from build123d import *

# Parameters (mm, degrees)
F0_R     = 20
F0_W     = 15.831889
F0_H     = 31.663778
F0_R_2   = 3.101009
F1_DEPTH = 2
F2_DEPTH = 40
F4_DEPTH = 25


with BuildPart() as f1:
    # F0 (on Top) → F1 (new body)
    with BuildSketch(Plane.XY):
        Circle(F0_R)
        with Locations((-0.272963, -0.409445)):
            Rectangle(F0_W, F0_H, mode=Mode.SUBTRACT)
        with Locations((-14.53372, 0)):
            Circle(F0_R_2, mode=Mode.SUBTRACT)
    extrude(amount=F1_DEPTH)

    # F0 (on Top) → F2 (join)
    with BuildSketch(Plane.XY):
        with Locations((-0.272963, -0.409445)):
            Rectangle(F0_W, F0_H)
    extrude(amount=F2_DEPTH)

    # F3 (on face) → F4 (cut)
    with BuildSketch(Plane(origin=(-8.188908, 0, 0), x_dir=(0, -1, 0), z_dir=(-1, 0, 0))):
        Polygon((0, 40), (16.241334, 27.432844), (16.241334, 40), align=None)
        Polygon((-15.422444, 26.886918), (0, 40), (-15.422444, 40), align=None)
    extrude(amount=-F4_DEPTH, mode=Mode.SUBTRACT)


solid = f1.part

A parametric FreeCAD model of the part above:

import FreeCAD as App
import Part
import Sketcher
from FreeCAD import Vector
Q = App.Units.Quantity


def add_polygon(sketch, points):
    """Adds a closed chain of lines whose ends are joined by coincident constraints."""
    first, n = sketch.GeometryCount, len(points)
    for a, b in zip(points, points[1:] + points[:1]):
        sketch.addGeometry(Part.LineSegment(App.Vector(*a, 0), App.Vector(*b, 0)), False)
    for i in range(n):
        sketch.addConstraint(Sketcher.Constraint("Coincident", first + i, 2, first + (i + 1) % n, 1))

doc = App.newDocument("Part")
body = doc.addObject("PartDesign::Body", "Body")

# Sketch on XY plane
sketch1 = body.newObject("Sketcher::SketchObject", "Sketch")
sketch1.AttachmentSupport = (doc.getObject("XY_Plane"), [""])
sketch1.MapMode = "FlatFace"
sketch1.addGeometry(Part.Circle(Vector(0, 0, 0), Vector(0, 0, 1), 20), False)  # 0
sketch1.addGeometry(Part.Circle(Vector(-14.53372, 0, 0), Vector(0, 0, 1), 3.101009), False)  # 1
add_polygon(sketch1, [(7.642982, -16.241334), (-8.188907, -16.241334), (-8.188907, 15.422444), (7.642982, 15.422444)])  # lines 2-5
sketch1.addConstraint([
    Sketcher.Constraint("Horizontal", 2),
    Sketcher.Constraint("Vertical", 3),
    Sketcher.Constraint("Horizontal", 4),
    Sketcher.Constraint("Vertical", 5),
    Sketcher.Constraint("Coincident", 0, 3, -1, 1),
    Sketcher.Constraint("PointOnObject", 1, 3, -1),
    Sketcher.Constraint("Diameter", 0, Q("40 mm")),
    Sketcher.Constraint("Diameter", 1, Q("6.202018 mm")),
    Sketcher.Constraint("DistanceX", 2, 2, 2, 1, Q("15.831889 mm")),
    Sketcher.Constraint("DistanceY", 3, 1, 3, 2, Q("31.663778 mm")),
    Sketcher.Constraint("DistanceX", 1, 3, 4, 2, Q("22.176702 mm")),
    Sketcher.Constraint("DistanceX", 1, 3, -1, 1, Q("14.53372 mm")),
    Sketcher.Constraint("DistanceY", 2, 2, -1, 1, Q("16.241334 mm")),
])
pad1 = body.newObject("PartDesign::Pad", "Pad")
pad1.Profile = sketch1
pad1.Length = 2

# Sketch on XY plane
sketch2 = body.newObject("Sketcher::SketchObject", "Sketch001")
sketch2.AttachmentSupport = (doc.getObject("XY_Plane"), [""])
sketch2.MapMode = "FlatFace"
add_polygon(sketch2, [(-8.188907, 15.422444), (-8.188907, -16.241334), (7.642982, -16.241334), (7.642982, 15.422444)])  # lines 0-3
sketch2.addConstraint([
    Sketcher.Constraint("Vertical", 0),
    Sketcher.Constraint("Horizontal", 1),
    Sketcher.Constraint("Vertical", 2),
    Sketcher.Constraint("Horizontal", 3),
    Sketcher.Constraint("DistanceX", 1, 1, 1, 2, Q("15.831889 mm")),
    Sketcher.Constraint("DistanceY", 0, 2, 0, 1, Q("31.663778 mm")),
    Sketcher.Constraint("DistanceX", -1, 1, 1, 2, Q("7.642982 mm")),
    Sketcher.Constraint("DistanceY", 0, 2, -1, 1, Q("16.241334 mm")),
])
pad2 = body.newObject("PartDesign::Pad", "Pad001")
pad2.Profile = sketch2
pad2.Length = 40

# Sketch on YZ plane
sketch3 = body.newObject("Sketcher::SketchObject", "Sketch002")
sketch3.AttachmentSupport = (doc.getObject("YZ_Plane"), [""])
sketch3.MapMode = "FlatFace"
sketch3.AttachmentOffset = App.Placement(Vector(0, 0, -8.188908), App.Rotation())
add_polygon(sketch3, [(0, 40), (-16.241334, 27.432844), (-16.241334, 40)])  # lines 0-2
add_polygon(sketch3, [(15.422444, 26.886918), (0, 40), (15.422444, 40)])  # lines 3-5
sketch3.addConstraint([
    Sketcher.Constraint("Vertical", 1),
    Sketcher.Constraint("Horizontal", 2),
    Sketcher.Constraint("Horizontal", 4),
    Sketcher.Constraint("Vertical", 5),
    Sketcher.Constraint("Coincident", 3, 2, 2, 2),
    Sketcher.Constraint("PointOnObject", 2, 2, -2),
    Sketcher.Constraint("DistanceY", -1, 1, 1, 2, Q("40 mm")),
    Sketcher.Constraint("DistanceY", 5, 2, 5, 1, Q("13.113082 mm")),
    Sketcher.Constraint("DistanceX", 2, 1, 2, 2, Q("16.241334 mm")),
    Sketcher.Constraint("DistanceX", 4, 1, 4, 2, Q("15.422444 mm")),
    Sketcher.Constraint("DistanceY", 1, 1, 1, 2, Q("12.567156 mm")),
])
pocket1 = body.newObject("PartDesign::Pocket", "Pocket")
pocket1.Profile = sketch3
pocket1.Length = 25
pocket1.Reversed = True

doc.recompute()
